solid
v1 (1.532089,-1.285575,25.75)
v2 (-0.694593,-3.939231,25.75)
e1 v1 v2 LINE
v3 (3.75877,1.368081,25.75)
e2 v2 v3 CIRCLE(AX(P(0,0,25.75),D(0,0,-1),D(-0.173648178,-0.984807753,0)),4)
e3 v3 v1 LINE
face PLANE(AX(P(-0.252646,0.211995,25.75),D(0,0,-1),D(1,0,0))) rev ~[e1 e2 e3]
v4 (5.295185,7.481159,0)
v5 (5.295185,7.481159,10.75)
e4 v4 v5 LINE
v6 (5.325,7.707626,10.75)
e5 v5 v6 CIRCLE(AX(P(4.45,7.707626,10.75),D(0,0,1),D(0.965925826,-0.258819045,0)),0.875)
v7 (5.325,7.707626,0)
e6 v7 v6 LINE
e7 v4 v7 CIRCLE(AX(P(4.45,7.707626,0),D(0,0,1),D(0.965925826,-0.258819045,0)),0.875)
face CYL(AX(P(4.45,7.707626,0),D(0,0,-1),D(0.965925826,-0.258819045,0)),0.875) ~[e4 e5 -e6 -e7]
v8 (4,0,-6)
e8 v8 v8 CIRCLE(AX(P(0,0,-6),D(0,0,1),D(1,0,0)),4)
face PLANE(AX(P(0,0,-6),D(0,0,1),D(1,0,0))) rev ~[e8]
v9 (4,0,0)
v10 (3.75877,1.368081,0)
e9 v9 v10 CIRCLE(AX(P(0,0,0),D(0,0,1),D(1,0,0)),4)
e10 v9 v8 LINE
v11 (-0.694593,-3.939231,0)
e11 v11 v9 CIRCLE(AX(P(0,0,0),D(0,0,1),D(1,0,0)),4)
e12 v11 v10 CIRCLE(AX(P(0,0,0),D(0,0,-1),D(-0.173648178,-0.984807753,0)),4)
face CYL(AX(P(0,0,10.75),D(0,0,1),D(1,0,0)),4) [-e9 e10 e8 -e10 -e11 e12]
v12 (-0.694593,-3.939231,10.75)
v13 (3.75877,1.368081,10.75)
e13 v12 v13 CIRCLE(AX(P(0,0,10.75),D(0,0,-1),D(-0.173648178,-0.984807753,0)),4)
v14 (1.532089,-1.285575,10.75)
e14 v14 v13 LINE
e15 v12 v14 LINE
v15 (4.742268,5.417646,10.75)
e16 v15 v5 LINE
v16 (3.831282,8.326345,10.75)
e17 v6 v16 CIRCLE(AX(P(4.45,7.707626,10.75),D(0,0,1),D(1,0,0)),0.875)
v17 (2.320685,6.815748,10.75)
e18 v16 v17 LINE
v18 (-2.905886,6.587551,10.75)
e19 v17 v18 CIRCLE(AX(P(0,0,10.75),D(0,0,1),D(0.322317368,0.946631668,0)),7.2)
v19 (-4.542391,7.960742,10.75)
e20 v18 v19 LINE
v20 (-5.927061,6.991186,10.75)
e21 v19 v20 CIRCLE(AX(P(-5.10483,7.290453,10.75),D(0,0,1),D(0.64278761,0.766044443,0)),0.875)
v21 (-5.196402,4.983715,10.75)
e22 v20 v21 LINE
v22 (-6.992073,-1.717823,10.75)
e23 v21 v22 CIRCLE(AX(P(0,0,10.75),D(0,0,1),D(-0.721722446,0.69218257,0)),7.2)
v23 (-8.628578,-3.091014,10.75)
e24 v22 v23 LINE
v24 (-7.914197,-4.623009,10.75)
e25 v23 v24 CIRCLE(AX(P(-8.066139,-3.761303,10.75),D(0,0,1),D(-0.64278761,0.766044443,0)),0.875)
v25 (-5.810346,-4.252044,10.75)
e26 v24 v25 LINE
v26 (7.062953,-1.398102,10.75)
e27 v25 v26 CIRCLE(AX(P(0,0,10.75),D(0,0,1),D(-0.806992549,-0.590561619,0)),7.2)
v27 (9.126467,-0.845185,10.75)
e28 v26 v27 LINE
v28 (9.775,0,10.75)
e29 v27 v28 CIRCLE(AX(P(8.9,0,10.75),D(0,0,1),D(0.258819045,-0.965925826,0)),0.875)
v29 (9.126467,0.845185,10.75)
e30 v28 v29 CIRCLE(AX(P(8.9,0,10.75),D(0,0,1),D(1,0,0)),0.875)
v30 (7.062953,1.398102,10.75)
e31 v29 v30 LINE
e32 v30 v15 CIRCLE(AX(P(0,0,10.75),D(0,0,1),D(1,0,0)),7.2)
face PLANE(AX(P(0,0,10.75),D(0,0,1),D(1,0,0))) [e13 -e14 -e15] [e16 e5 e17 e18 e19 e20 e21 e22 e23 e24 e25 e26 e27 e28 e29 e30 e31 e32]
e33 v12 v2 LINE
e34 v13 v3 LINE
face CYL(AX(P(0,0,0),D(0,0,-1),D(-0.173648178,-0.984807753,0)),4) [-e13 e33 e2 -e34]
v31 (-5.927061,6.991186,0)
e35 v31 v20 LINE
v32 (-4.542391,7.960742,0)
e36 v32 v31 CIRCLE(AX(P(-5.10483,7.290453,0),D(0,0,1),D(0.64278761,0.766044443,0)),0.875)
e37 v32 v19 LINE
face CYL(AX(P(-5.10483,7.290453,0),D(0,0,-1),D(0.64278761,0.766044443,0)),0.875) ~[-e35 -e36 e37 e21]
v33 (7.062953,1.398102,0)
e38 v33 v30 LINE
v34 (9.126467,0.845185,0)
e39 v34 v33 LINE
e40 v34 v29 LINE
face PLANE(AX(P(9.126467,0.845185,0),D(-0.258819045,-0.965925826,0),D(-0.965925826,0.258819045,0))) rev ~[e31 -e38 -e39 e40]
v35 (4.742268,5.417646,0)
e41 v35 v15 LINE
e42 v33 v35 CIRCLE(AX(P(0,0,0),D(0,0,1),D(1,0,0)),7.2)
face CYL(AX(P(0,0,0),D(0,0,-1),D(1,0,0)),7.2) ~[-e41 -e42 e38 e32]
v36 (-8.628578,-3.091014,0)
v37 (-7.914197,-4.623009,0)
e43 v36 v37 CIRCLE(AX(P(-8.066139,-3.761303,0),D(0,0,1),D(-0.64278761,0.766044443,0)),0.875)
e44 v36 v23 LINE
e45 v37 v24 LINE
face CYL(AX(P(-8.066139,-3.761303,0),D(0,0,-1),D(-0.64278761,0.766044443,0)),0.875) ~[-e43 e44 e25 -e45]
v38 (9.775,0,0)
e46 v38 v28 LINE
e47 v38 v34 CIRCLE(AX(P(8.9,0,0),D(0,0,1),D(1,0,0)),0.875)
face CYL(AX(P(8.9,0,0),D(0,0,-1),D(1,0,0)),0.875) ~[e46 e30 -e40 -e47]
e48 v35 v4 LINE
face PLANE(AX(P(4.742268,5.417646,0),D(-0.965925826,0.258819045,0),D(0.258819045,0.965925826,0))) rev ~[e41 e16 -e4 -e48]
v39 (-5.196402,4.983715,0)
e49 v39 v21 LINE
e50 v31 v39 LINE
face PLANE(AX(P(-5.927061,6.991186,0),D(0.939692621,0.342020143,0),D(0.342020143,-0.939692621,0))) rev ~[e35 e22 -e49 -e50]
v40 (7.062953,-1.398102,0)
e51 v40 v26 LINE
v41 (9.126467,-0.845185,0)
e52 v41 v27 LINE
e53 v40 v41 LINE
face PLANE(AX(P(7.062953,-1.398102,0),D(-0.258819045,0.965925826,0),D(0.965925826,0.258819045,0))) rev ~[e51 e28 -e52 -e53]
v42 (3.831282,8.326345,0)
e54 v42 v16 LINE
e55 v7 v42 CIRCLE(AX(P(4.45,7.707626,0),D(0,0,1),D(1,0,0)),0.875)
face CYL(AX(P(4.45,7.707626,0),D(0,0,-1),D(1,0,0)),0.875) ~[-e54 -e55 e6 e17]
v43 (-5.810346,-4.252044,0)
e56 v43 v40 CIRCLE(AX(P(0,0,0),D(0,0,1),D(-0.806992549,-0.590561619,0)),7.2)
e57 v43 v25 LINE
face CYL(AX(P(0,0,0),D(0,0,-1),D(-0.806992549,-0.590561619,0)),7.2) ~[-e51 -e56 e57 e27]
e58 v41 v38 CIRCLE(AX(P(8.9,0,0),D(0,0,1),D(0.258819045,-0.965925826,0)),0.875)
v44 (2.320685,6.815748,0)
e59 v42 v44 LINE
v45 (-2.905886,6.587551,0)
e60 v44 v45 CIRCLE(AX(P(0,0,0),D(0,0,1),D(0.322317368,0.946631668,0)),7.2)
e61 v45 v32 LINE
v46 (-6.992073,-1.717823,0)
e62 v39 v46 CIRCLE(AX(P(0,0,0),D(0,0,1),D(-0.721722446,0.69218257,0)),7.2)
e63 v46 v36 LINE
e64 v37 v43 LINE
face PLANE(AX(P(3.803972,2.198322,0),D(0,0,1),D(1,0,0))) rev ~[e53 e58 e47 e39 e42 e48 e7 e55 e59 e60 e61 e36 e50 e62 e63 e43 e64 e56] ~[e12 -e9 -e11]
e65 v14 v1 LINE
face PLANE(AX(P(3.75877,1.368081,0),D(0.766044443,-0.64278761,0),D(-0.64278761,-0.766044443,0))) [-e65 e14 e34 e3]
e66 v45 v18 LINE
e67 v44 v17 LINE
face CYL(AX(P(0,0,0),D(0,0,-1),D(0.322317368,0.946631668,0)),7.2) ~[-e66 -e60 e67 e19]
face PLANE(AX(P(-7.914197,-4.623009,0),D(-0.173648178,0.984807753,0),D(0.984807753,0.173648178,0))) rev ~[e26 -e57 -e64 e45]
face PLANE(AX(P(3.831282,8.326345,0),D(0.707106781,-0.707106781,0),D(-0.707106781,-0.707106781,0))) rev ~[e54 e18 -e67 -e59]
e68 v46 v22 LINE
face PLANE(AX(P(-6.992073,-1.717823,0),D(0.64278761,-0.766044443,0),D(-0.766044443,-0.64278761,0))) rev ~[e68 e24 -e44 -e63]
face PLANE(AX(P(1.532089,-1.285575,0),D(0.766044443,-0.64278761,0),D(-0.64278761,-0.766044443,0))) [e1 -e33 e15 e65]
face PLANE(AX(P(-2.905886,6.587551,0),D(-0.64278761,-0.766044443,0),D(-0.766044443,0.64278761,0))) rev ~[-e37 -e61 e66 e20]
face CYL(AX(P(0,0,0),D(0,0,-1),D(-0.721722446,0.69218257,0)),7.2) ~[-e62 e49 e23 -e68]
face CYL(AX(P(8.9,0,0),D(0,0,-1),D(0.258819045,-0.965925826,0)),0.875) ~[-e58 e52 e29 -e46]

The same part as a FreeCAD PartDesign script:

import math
import FreeCAD as App
import Part
import Sketcher
Q = App.Units.Quantity

doc = App.newDocument("Part")
params = doc.addObject("Spreadsheet::Sheet", "Params")
for row, (alias, value) in enumerate([
    ("sketch1_radius", "7.2 mm"),
    ("pad1_length", "10.75 mm"),
    ("sketch2_diameter", "8 mm"),
    ("pad2_length", "16.75 mm"),
    ("sketch3_radius", "4 mm"),
    ("pad3_length", "25.75 mm"),
], start=1):
    params.set(f"A{row}", alias)
    params.set(f"B{row}", "=" + value)
    params.setAlias(f"B{row}", alias)

body = doc.addObject("PartDesign::Body", "Body")

sketch1 = body.newObject("Sketcher::SketchObject", "Sketch")
sketch1.AttachmentSupport = (doc.getObject("XY_Plane"), [""])
sketch1.MapMode = "FlatFace"
sketch1.addGeometry(Part.ArcOfCircle(Part.Circle(App.Vector(4.45, 7.71, 0), App.Vector(0, 0, 1), 0.88), math.radians(0), math.radians(135)), False)
sketch1.addGeometry(Part.LineSegment(App.Vector(3.83, 8.33, 0), App.Vector(2.32, 6.82, 0)), False)
sketch1.addGeometry(Part.ArcOfCircle(Part.Circle(App.Vector(0, 0, 0), App.Vector(0, 0, 1), 7.2), math.radians(71), math.radians(114)), False)
sketch1.addGeometry(Part.LineSegment(App.Vector(-2.91, 6.59, 0), App.Vector(-4.54, 7.96, 0)), False)
sketch1.addGeometry(Part.ArcOfCircle(Part.Circle(App.Vector(-5.1, 7.29, 0), App.Vector(0, 0, 1), 0.88), math.radians(50), math.radians(200)), False)
sketch1.addGeometry(Part.LineSegment(App.Vector(-5.93, 6.99, 0), App.Vector(-5.2, 4.98, 0)), False)
sketch1.addGeometry(Part.ArcOfCircle(Part.Circle(App.Vector(0, 0, 0), App.Vector(0, 0, 1), 7.2), math.radians(136), math.radians(194)), False)
sketch1.addGeometry(Part.LineSegment(App.Vector(-6.99, -1.72, 0), App.Vector(-8.63, -3.09, 0)), False)
sketch1.addGeometry(Part.ArcOfCircle(Part.Circle(App.Vector(-8.07, -3.76, 0), App.Vector(0, 0, 1), 0.88), math.radians(130), math.radians(280)), False)
sketch1.addGeometry(Part.LineSegment(App.Vector(-7.91, -4.62, 0), App.Vector(-5.81, -4.25, 0)), False)
sketch1.addGeometry(Part.ArcOfCircle(Part.Circle(App.Vector(0, 0, 0), App.Vector(0, 0, 1), 7.2), math.radians(-144), math.radians(-11)), False)
sketch1.addGeometry(Part.LineSegment(App.Vector(7.06, -1.4, 0), App.Vector(9.13, -0.85, 0)), False)
sketch1.addGeometry(Part.ArcOfCircle(Part.Circle(App.Vector(8.9, 0, 0), App.Vector(0, 0, 1), 0.88), math.radians(-75), math.radians(0)), False)
sketch1.addGeometry(Part.ArcOfCircle(Part.Circle(App.Vector(8.9, 0, 0), App.Vector(0, 0, 1), 0.88), math.radians(0), math.radians(75)), False)
sketch1.addGeometry(Part.LineSegment(App.Vector(9.13, 0.85, 0), App.Vector(7.06, 1.4, 0)), False)
sketch1.addGeometry(Part.ArcOfCircle(Part.Circle(App.Vector(0, 0, 0), App.Vector(0, 0, 1), 7.2), math.radians(11), math.radians(49)), False)
sketch1.addGeometry(Part.LineSegment(App.Vector(4.74, 5.42, 0), App.Vector(5.3, 7.48, 0)), False)
sketch1.addGeometry(Part.ArcOfCircle(Part.Circle(App.Vector(4.45, 7.71, 0), App.Vector(0, 0, 1), 0.88), math.radians(-15), math.radians(0)), False)
sketch1.addConstraint(Sketcher.Constraint("Tangent", 0, 2, 1, 1))
sketch1.addConstraint(Sketcher.Constraint("Coincident", 1, 2, 2, 1))
sketch1.addConstraint(Sketcher.Constraint("Coincident", 2, 2, 3, 1))
sketch1.addConstraint(Sketcher.Constraint("Tangent", 3, 2, 4, 1))
sketch1.addConstraint(Sketcher.Constraint("Tangent", 4, 2, 5, 1))
sketch1.addConstraint(Sketcher.Constraint("Coincident", 5, 2, 6, 1))
sketch1.addConstraint(Sketcher.Constraint("Coincident", 6, 2, 7, 1))
sketch1.addConstraint(Sketcher.Constraint("Tangent", 7, 2, 8, 1))
sketch1.addConstraint(Sketcher.Constraint("Tangent", 8, 2, 9, 1))
sketch1.addConstraint(Sketcher.Constraint("Coincident", 9, 2, 10, 1))
sketch1.addConstraint(Sketcher.Constraint("Coincident", 10, 2, 11, 1))
sketch1.addConstraint(Sketcher.Constraint("Tangent", 11, 2, 12, 1))
sketch1.addConstraint(Sketcher.Constraint("Tangent", 12, 2, 13, 1))
sketch1.addConstraint(Sketcher.Constraint("Tangent", 13, 2, 14, 1))
sketch1.addConstraint(Sketcher.Constraint("Coincident", 14, 2, 15, 1))
sketch1.addConstraint(Sketcher.Constraint("Coincident", 15, 2, 16, 1))
sketch1.addConstraint(Sketcher.Constraint("Tangent", 16, 2, 17, 1))
sketch1.addConstraint(Sketcher.Constraint("Tangent", 17, 2, 0, 1))
sketch1.addConstraint(Sketcher.Constraint("Coincident", 2, 3, -1, 1))
sketch1.addConstraint(Sketcher.Constraint("Coincident", 6, 3, -1, 1))
sketch1.addConstraint(Sketcher.Constraint("Coincident", 10, 3, -1, 1))
sketch1.addConstraint(Sketcher.Constraint("Coincident", 15, 3, -1, 1))
sketch1.addConstraint(Sketcher.Constraint("Equal", 0, 4))
sketch1.addConstraint(Sketcher.Constraint("Equal", 2, 6))
sketch1.addConstraint(Sketcher.Constraint("Equal", 4, 8))
sketch1.addConstraint(Sketcher.Constraint("Equal", 6, 10))
sketch1.addConstraint(Sketcher.Constraint("Equal", 8, 12))
sketch1.addConstraint(Sketcher.Constraint("Equal", 12, 13))
sketch1.addConstraint(Sketcher.Constraint("Equal", 10, 15))
sketch1.addConstraint(Sketcher.Constraint("Equal", 13, 17))
sketch1.addConstraint(Sketcher.Constraint("Symmetric", 11, 2, 13, 2, -1))
sketch1.addConstraint(Sketcher.Constraint("PointOnObject", 12, 2, -1))
sketch1.addConstraint(Sketcher.Constraint("Perpendicular", 14, 16))
sketch1.addConstraint(Sketcher.Constraint("Horizontal", 0, 3, 17, 2))
sketch1.addConstraint(Sketcher.Constraint("Equal", 1, 3))
sketch1.addConstraint(Sketcher.Constraint("Equal", 3, 5))
sketch1.addConstraint(Sketcher.Constraint("Equal", 5, 7))
sketch1.addConstraint(Sketcher.Constraint("Equal", 7, 9))
sketch1.addConstraint(Sketcher.Constraint("Equal", 9, 11))
sketch1.addConstraint(Sketcher.Constraint("Equal", 14, 16))
sketch1.addConstraint(Sketcher.Constraint("Radius", 2, 7.2))
sketch1.addConstraint(Sketcher.Constraint("Angle", 1, Q("-135 deg")))
sketch1.addConstraint(Sketcher.Constraint("Angle", 3, Q("140 deg")))
sketch1.addConstraint(Sketcher.Constraint("Angle", 5, Q("-70 deg")))
sketch1.addConstraint(Sketcher.Constraint("Angle", 7, Q("-140 deg")))
sketch1.addConstraint(Sketcher.Constraint("Angle", 9, Q("10 deg")))
sketch1.addConstraint(Sketcher.Constraint("Angle", 11, Q("15 deg")))
sketch1.addConstraint(Sketcher.Constraint("Radius", 0, 0.875))
sketch1.addConstraint(Sketcher.Constraint("DistanceX", -1, 1, 12, 3, 8.9))
sketch1.setExpression("Constraints[40]", "Params.sketch1_radius")
pad1 = body.newObject("PartDesign::Pad", "Pad")
pad1.Profile = sketch1
pad1.setExpression("Length", "Params.pad1_length")

sketch2 = body.newObject("Sketcher::SketchObject", "Sketch001")
sketch2.AttachmentSupport = (doc.getObject("XY_Plane"), [""])
sketch2.MapMode = "FlatFace"
sketch2.AttachmentOffset = App.Placement(App.Vector(0, 0, 10.75), App.Rotation())
sketch2.addGeometry(Part.Circle(App.Vector(0, 0, 0), App.Vector(0, 0, 1), 4), False)
sketch2.addConstraint(Sketcher.Constraint("Coincident", 0, 3, -1, 1))
sketch2.addConstraint(Sketcher.Constraint("Diameter", 0, 8.0))
sketch2.setExpression("Constraints[1]", "Params.sketch2_diameter")
pad2 = body.newObject("PartDesign::Pad", "Pad001")
pad2.Profile = sketch2
pad2.setExpression("Length", "Params.pad2_length")
pad2.Reversed = True

sketch3 = body.newObject("Sketcher::SketchObject", "Sketch002")
sketch3.AttachmentSupport = (doc.getObject("XY_Plane"), [""])
sketch3.MapMode = "FlatFace"
sketch3.addGeometry(Part.LineSegment(App.Vector(1.5, -1.3, 0), App.Vector(-0.7, -3.9, 0)), False)
sketch3.addGeometry(Part.ArcOfCircle(Part.Circle(App.Vector(0, 0, 0), App.Vector(0, 0, 1), 4), math.radians(20), math.radians(260)), False)
sketch3.addGeometry(Part.LineSegment(App.Vector(3.8, 1.4, 0), App.Vector(1.5, -1.3, 0)), False)
sketch3.addConstraint(Sketcher.Constraint("Coincident", 0, 2, 1, 2))
sketch3.addConstraint(Sketcher.Constraint("Coincident", 1, 1, 2, 1))
sketch3.addConstraint(Sketcher.Constraint("Coincident", 2, 2, 0, 1))
sketch3.addConstraint(Sketcher.Constraint("Coincident", 1, 3, -1, 1))
sketch3.addConstraint(Sketcher.Constraint("Parallel", 0, 2))
sketch3.addConstraint(Sketcher.Constraint("Equal", 0, 2))
sketch3.addConstraint(Sketcher.Constraint("Radius", 1, 4.0))
sketch3.addConstraint(Sketcher.Constraint("Angle", 0, Q("-130 deg")))
sketch3.addConstraint(Sketcher.Constraint("Distance", 0, 3.464102))
sketch3.setExpression("Constraints[6]", "Params.sketch3_radius")
pad3 = body.newObject("PartDesign::Pad", "Pad002")
pad3.Profile = sketch3
pad3.setExpression("Length", "Params.pad3_length")

doc.recompute()
